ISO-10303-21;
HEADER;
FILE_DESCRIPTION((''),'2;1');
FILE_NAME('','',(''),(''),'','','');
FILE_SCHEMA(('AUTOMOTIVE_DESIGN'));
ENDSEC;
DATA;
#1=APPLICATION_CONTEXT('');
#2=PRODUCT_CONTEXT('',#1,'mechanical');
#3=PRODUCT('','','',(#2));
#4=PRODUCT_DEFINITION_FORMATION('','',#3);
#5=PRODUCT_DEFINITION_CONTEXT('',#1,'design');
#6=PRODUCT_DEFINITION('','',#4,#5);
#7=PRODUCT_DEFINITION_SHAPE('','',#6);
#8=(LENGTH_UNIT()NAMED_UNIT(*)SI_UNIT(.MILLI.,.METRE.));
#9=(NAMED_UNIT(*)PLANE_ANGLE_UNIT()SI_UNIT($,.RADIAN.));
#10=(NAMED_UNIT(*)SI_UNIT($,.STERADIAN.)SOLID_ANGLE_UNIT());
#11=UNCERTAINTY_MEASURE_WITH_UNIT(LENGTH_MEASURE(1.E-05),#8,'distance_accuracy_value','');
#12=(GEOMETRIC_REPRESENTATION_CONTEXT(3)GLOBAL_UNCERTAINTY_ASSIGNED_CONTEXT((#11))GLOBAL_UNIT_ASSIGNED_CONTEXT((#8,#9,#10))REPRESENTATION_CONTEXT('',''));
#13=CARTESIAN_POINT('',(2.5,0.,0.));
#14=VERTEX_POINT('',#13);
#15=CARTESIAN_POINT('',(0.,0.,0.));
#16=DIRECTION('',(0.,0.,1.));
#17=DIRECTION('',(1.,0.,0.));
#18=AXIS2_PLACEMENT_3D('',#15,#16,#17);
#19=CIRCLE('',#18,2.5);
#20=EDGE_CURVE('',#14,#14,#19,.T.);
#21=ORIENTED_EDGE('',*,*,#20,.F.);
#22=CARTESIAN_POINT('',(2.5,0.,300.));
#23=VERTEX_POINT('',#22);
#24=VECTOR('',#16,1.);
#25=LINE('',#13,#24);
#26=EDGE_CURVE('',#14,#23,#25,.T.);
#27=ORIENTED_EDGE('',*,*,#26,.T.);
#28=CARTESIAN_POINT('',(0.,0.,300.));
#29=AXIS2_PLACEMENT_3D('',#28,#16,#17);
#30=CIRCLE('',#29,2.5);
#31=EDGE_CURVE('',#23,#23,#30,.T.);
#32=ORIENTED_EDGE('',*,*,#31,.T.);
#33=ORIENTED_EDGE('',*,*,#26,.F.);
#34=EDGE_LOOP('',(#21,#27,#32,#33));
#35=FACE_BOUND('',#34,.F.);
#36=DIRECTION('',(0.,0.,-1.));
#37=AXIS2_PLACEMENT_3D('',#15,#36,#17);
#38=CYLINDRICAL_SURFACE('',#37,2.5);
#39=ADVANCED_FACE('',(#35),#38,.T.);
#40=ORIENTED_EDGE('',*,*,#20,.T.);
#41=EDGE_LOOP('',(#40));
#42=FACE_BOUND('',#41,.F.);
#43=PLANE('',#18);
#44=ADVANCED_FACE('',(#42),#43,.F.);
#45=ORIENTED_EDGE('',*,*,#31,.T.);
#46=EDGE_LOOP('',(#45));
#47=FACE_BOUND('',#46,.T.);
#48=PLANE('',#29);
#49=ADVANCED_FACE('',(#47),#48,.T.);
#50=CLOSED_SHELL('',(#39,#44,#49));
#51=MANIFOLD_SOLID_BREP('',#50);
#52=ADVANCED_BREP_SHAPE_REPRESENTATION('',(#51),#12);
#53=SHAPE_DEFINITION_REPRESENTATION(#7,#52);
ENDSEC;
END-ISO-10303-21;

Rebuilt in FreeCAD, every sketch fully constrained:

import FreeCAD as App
import Part
import Sketcher

doc = App.newDocument("Part")
params = doc.addObject("Spreadsheet::Sheet", "Params")
for row, (alias, value) in enumerate([
    ("sketch1_diameter", "5 mm"),
    ("pad1_length", "300 mm"),
], start=1):
    params.set(f"A{row}", alias)
    params.set(f"B{row}", "=" + value)
    params.setAlias(f"B{row}", alias)

body = doc.addObject("PartDesign::Body", "Body")

sketch1 = doc.addObject("Sketcher::SketchObject", "Sketch")
body.addObject(sketch1)
sketch1.AttachmentSupport = (doc.XY_Plane, [""])
sketch1.MapMode = "FlatFace"
sketch1.addGeometry(Part.Circle(App.Vector(0, 0, 0), App.Vector(0, 0, 1), 2.5), False)
sketch1.addConstraint([
    Sketcher.Constraint("Coincident", 0, 3, -1, 1),
    Sketcher.Constraint("Diameter", 0, 5.0),
])
sketch1.setExpression("Constraints[1]", "Params.sketch1_diameter")
pad1 = doc.addObject("PartDesign::Pad", "Pad")
body.addObject(pad1)
pad1.Profile = sketch1
pad1.setExpression("Length", "Params.pad1_length")

doc.recompute()
